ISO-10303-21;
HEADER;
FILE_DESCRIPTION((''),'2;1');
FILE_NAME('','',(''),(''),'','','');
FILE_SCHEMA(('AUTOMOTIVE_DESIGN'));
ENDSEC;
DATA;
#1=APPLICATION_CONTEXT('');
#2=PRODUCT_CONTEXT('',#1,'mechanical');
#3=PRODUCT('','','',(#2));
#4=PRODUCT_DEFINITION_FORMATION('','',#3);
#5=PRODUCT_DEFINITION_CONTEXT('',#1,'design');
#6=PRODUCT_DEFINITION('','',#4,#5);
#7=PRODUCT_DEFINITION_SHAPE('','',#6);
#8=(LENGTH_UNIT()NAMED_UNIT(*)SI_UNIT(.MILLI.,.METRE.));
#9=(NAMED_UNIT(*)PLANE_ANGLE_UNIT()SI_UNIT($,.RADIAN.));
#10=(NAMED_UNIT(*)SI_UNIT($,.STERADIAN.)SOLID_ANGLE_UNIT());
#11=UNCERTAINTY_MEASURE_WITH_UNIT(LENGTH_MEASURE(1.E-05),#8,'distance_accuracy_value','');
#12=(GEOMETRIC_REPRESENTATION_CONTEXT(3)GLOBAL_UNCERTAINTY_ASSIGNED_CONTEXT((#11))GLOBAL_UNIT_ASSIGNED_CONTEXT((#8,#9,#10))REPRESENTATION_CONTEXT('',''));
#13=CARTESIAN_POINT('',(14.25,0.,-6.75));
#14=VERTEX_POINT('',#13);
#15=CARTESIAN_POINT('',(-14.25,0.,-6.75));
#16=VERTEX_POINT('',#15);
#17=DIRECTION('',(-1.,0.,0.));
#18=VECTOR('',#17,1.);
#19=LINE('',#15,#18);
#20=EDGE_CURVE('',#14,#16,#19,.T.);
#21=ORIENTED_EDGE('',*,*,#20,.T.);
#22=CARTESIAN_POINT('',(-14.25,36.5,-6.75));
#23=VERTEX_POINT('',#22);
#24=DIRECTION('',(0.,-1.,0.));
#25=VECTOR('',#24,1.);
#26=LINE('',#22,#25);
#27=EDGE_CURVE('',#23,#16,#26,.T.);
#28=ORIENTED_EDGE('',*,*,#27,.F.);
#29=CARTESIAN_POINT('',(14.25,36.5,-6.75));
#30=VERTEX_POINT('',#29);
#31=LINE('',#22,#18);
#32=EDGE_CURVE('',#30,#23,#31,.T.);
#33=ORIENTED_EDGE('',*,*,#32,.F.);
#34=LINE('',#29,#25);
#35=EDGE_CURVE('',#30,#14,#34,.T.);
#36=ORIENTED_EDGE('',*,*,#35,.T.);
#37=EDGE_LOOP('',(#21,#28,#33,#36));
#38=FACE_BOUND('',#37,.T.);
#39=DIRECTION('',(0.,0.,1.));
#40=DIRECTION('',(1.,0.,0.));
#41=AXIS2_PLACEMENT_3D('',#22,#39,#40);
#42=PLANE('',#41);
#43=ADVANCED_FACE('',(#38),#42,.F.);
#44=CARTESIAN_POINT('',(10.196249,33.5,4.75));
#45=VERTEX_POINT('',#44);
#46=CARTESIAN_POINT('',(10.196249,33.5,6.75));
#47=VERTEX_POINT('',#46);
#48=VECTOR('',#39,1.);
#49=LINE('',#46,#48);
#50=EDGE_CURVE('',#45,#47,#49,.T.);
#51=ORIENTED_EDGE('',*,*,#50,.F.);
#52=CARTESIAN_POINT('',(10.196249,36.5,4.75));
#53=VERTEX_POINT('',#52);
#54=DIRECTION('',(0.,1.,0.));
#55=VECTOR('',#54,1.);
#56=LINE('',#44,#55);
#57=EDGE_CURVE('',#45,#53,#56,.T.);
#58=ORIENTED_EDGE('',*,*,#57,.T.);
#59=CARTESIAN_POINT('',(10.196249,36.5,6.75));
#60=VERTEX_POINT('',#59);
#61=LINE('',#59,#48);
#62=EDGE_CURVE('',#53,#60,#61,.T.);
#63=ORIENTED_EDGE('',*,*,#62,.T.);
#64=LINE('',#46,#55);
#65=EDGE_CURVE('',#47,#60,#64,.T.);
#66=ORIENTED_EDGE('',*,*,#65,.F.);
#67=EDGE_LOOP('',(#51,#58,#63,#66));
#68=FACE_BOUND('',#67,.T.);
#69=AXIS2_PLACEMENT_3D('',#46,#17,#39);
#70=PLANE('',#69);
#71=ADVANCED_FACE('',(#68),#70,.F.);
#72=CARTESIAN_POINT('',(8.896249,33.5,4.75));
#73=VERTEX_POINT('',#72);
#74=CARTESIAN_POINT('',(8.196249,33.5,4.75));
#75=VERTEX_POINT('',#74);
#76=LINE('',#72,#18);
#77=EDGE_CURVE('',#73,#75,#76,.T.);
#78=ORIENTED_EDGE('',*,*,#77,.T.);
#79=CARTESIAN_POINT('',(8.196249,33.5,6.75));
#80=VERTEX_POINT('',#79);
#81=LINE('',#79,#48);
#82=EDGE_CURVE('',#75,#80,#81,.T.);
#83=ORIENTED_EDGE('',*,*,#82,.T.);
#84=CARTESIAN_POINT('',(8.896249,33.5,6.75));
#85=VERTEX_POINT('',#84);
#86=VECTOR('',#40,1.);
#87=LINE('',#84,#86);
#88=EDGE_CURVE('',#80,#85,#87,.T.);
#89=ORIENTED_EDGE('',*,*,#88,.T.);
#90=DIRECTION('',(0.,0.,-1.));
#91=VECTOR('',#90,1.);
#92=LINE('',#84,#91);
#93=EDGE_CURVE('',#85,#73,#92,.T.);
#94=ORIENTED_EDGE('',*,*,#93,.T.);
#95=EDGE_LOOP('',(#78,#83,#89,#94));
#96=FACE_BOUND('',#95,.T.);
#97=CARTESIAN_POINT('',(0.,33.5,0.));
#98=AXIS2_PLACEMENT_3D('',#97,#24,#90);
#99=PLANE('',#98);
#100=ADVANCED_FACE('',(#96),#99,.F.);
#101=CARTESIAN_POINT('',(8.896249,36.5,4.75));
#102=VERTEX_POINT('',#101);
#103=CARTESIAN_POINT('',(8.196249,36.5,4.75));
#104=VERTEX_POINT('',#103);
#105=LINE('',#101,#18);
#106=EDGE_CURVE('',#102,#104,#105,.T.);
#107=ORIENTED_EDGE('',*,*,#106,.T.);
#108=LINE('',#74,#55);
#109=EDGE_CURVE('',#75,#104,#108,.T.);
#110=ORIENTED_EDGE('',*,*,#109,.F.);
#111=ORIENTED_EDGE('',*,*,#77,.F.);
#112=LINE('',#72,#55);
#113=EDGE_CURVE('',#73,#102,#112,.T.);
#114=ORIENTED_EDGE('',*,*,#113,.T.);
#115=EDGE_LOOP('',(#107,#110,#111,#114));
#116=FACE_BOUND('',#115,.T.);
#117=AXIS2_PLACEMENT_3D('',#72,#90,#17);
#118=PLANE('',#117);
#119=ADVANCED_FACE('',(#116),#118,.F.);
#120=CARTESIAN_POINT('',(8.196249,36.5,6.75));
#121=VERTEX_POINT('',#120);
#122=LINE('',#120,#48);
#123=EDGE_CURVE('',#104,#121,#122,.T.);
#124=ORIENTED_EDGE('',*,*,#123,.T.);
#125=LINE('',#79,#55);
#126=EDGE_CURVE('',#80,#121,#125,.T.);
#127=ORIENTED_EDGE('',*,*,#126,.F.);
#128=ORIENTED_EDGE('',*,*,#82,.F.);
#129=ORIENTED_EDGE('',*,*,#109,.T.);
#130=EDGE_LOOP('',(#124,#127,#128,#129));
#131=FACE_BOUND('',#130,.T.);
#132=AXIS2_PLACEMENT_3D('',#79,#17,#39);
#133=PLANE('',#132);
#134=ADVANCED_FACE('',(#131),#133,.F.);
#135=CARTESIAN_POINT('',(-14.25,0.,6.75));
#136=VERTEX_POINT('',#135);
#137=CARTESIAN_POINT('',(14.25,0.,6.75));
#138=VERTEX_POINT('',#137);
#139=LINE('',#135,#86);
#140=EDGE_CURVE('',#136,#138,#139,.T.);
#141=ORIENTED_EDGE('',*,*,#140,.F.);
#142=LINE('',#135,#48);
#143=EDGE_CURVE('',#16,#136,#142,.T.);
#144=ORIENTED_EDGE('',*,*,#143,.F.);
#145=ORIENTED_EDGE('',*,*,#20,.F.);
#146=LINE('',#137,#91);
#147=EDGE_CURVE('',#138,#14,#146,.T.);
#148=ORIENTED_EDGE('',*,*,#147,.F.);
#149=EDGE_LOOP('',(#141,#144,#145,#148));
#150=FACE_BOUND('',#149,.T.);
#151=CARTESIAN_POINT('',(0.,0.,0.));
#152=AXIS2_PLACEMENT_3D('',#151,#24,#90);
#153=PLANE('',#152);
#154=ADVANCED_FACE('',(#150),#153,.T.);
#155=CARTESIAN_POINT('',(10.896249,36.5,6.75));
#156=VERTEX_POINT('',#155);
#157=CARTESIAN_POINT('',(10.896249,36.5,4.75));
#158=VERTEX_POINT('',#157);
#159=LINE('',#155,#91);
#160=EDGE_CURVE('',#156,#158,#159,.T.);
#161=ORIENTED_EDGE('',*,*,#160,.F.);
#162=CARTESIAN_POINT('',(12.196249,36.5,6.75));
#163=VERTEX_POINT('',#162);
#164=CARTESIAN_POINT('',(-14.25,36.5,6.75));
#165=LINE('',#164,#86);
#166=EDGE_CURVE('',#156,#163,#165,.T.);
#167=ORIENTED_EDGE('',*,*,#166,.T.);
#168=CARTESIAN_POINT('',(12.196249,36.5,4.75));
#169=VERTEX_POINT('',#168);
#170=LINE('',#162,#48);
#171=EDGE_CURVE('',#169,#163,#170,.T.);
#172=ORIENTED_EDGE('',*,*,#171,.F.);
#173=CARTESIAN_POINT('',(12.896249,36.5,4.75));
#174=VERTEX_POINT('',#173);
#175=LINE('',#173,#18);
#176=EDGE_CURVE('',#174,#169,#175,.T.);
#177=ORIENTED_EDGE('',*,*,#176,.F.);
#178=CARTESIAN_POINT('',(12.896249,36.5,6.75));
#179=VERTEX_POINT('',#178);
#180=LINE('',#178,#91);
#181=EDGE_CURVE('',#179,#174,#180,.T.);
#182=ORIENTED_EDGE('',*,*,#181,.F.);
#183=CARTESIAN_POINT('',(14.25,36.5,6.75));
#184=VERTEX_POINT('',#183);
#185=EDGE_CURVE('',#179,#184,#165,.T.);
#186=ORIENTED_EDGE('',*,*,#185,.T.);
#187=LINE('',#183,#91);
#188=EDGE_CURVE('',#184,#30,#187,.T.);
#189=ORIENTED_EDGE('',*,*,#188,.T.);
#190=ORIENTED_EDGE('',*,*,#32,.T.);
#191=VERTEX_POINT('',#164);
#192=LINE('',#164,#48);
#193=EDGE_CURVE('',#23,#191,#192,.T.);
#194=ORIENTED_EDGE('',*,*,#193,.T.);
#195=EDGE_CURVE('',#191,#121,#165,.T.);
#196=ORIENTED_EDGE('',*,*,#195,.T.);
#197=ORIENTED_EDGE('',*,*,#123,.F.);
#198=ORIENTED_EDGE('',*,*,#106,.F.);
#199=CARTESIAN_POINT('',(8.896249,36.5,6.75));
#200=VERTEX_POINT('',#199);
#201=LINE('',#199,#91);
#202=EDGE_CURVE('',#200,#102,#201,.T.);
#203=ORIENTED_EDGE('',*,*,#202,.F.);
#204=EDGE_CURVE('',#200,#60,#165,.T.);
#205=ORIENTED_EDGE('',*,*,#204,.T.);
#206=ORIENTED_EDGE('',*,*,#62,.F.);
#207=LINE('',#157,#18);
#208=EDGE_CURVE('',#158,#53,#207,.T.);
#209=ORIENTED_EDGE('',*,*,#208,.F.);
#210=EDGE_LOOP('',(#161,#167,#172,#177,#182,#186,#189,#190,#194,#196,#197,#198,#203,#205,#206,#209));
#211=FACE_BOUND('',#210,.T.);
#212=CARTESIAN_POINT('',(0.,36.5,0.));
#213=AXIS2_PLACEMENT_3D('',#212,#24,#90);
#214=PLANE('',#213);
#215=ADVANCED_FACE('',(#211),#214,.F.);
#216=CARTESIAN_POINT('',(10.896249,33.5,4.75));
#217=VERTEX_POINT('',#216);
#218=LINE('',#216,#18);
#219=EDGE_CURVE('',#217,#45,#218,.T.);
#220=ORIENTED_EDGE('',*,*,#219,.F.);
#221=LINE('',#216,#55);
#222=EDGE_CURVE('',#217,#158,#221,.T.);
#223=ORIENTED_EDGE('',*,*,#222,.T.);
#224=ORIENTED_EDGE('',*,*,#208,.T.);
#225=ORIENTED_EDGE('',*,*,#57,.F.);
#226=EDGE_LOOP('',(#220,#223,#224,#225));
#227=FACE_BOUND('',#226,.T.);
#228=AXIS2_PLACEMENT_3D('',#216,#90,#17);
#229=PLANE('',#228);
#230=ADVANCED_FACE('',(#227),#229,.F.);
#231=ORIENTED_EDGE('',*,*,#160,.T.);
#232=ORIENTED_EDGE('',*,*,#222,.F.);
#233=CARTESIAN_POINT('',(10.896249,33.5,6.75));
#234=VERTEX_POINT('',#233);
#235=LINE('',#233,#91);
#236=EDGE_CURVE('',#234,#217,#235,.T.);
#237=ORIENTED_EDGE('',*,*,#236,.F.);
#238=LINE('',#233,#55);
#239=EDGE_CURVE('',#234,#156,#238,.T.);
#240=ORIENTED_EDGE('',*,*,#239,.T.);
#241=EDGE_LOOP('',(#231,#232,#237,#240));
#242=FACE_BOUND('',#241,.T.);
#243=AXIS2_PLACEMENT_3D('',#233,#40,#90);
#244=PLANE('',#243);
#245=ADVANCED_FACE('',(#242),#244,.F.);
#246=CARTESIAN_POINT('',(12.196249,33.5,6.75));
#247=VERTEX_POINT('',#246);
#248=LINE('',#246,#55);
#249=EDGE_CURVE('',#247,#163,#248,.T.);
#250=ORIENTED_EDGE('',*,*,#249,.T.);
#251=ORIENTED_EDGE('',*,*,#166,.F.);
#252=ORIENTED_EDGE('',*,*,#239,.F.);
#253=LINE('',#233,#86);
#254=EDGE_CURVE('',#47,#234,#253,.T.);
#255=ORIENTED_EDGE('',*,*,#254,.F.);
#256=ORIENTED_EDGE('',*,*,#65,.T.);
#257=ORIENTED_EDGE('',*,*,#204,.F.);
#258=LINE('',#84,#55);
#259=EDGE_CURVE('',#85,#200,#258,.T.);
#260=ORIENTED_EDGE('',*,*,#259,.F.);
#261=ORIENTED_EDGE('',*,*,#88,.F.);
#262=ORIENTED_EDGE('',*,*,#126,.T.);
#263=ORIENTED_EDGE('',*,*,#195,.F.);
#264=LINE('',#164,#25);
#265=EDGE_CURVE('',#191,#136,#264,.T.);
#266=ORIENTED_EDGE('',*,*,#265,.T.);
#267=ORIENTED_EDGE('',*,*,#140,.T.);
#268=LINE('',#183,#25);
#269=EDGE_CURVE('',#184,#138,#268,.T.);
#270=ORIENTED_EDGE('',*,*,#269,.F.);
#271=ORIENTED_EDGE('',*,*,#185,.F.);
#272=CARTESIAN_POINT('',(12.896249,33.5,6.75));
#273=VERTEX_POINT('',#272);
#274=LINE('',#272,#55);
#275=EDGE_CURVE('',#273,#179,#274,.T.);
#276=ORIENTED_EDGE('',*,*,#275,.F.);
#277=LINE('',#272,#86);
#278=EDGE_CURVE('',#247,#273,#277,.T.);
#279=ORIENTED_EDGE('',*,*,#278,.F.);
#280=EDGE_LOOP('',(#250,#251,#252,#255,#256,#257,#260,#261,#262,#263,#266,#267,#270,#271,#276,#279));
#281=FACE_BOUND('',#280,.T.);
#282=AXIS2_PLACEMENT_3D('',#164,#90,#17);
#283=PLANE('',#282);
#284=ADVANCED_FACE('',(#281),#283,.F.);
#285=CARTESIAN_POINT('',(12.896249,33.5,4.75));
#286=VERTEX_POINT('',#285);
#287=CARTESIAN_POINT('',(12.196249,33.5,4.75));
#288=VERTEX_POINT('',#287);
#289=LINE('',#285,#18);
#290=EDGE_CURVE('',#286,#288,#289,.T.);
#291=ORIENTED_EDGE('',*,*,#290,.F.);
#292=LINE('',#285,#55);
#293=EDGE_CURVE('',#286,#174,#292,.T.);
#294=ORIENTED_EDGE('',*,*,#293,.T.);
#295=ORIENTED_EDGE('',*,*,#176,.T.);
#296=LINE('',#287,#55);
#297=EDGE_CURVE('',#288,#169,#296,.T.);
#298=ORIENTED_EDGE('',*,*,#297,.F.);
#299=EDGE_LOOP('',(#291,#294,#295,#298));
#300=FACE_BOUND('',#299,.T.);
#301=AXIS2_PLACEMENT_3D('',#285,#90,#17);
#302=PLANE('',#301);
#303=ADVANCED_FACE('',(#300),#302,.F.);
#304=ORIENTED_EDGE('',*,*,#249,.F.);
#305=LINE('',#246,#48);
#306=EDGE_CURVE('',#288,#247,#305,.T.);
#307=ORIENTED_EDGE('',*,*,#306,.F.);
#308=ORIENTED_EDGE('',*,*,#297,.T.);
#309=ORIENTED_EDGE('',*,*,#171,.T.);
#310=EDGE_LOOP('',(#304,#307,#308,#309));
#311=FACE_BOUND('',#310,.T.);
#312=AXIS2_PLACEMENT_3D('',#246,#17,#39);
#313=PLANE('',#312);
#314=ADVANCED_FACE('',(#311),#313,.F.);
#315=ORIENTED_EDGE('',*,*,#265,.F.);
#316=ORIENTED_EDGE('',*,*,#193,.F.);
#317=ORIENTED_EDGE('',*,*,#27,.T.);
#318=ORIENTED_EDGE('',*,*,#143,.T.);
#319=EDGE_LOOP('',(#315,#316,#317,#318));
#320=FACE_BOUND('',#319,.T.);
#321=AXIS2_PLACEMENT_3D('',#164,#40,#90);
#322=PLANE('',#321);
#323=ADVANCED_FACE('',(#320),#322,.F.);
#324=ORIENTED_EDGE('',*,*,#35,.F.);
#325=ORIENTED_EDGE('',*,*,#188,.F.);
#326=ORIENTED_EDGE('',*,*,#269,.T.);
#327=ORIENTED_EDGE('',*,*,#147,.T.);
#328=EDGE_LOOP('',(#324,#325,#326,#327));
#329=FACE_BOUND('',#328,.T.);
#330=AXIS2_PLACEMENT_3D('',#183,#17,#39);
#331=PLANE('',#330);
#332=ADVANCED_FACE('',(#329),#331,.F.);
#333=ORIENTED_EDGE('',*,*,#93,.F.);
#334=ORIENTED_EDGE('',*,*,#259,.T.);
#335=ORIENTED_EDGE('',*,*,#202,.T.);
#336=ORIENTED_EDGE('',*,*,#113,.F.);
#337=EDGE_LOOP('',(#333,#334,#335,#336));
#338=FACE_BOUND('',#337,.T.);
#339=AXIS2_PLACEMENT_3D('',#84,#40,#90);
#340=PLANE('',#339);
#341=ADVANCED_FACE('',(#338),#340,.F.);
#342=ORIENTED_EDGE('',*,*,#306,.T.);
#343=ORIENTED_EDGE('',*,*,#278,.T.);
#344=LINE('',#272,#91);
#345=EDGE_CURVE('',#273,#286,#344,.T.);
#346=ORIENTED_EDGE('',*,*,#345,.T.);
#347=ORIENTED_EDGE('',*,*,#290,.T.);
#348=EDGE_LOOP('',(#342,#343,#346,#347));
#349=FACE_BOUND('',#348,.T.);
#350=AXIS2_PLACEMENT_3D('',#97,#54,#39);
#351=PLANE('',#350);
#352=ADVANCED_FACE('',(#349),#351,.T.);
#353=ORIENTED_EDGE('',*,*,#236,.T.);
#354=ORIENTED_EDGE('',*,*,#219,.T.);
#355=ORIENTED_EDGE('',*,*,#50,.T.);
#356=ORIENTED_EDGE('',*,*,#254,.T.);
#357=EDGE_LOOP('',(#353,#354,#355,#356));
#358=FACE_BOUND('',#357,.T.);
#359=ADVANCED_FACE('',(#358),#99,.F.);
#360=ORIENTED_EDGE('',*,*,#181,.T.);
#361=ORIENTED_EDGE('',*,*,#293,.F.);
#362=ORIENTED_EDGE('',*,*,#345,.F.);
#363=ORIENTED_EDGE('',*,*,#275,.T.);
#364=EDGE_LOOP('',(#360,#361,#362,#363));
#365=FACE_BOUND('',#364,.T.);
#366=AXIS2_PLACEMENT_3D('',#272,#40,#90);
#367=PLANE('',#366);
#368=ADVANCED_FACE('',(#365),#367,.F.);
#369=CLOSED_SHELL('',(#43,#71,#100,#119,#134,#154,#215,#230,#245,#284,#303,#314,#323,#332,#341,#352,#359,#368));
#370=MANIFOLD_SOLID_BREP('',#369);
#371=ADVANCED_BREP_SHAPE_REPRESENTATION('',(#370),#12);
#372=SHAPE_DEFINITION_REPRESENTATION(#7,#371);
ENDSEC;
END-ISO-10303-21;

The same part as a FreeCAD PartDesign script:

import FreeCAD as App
import Part
import Sketcher

doc = App.newDocument("Part")
body = doc.addObject("PartDesign::Body", "Body")

sketch1 = body.newObject("Sketcher::SketchObject", "Sketch")
sketch1.AttachmentSupport = (doc.getObject("XZ_Plane"), [""])
sketch1.MapMode = "FlatFace"
sketch1.addGeometry(Part.LineSegment(App.Vector(-14, -7, 0), App.Vector(-14, 7, 0)), False)
sketch1.addGeometry(Part.LineSegment(App.Vector(-14, 7, 0), App.Vector(14, 7, 0)), False)
sketch1.addGeometry(Part.LineSegment(App.Vector(14, 7, 0), App.Vector(14, -7, 0)), False)
sketch1.addGeometry(Part.LineSegment(App.Vector(14, -7, 0), App.Vector(-14, -7, 0)), False)
sketch1.addConstraint(Sketcher.Constraint("Coincident", 0, 2, 1, 1))
sketch1.addConstraint(Sketcher.Constraint("Coincident", 1, 2, 2, 1))
sketch1.addConstraint(Sketcher.Constraint("Coincident", 2, 2, 3, 1))
sketch1.addConstraint(Sketcher.Constraint("Coincident", 3, 2, 0, 1))
sketch1.addConstraint(Sketcher.Constraint("Vertical", 0))
sketch1.addConstraint(Sketcher.Constraint("Horizontal", 1))
sketch1.addConstraint(Sketcher.Constraint("Vertical", 2))
sketch1.addConstraint(Sketcher.Constraint("Horizontal", 3))
sketch1.addConstraint(Sketcher.Constraint("Symmetric", 0, 2, 2, 2, -1, 1))
sketch1.addConstraint(Sketcher.Constraint("DistanceX", 1, 1, 1, 2, 28.5))
sketch1.addConstraint(Sketcher.Constraint("DistanceY", 0, 1, 0, 2, 13.5))
pad1 = body.newObject("PartDesign::Pad", "Pad")
pad1.Profile = sketch1
pad1.Length = 36.5
pad1.Reversed = True

sketch2 = body.newObject("Sketcher::SketchObject", "Sketch001")
sketch2.AttachmentSupport = (doc.getObject("XZ_Plane"), [""])
sketch2.MapMode = "FlatFace"
sketch2.AttachmentOffset = App.Placement(App.Vector(0, 0, -36.5), App.Rotation())
sketch2.addGeometry(Part.LineSegment(App.Vector(12.2, 4.8, 0), App.Vector(12.2, 6.8, 0)), False)
sketch2.addGeometry(Part.LineSegment(App.Vector(12.2, 6.8, 0), App.Vector(12.9, 6.8, 0)), False)
sketch2.addGeometry(Part.LineSegment(App.Vector(12.9, 6.8, 0), App.Vector(12.9, 4.8, 0)), False)
sketch2.addGeometry(Part.LineSegment(App.Vector(12.9, 4.8, 0), App.Vector(12.2, 4.8, 0)), False)
sketch2.addGeometry(Part.LineSegment(App.Vector(10.2, 4.8, 0), App.Vector(10.2, 6.8, 0)), False)
sketch2.addGeometry(Part.LineSegment(App.Vector(10.2, 6.8, 0), App.Vector(10.9, 6.8, 0)), False)
sketch2.addGeometry(Part.LineSegment(App.Vector(10.9, 6.8, 0), App.Vector(10.9, 4.8, 0)), False)
sketch2.addGeometry(Part.LineSegment(App.Vector(10.9, 4.8, 0), App.Vector(10.2, 4.8, 0)), False)
sketch2.addGeometry(Part.LineSegment(App.Vector(8.2, 4.8, 0), App.Vector(8.2, 6.8, 0)), False)
sketch2.addGeometry(Part.LineSegment(App.Vector(8.2, 6.8, 0), App.Vector(8.9, 6.8, 0)), False)
sketch2.addGeometry(Part.LineSegment(App.Vector(8.9, 6.8, 0), App.Vector(8.9, 4.8, 0)), False)
sketch2.addGeometry(Part.LineSegment(App.Vector(8.9, 4.8, 0), App.Vector(8.2, 4.8, 0)), False)
sketch2.addConstraint(Sketcher.Constraint("Coincident", 0, 2, 1, 1))
sketch2.addConstraint(Sketcher.Constraint("Coincident", 1, 2, 2, 1))
sketch2.addConstraint(Sketcher.Constraint("Coincident", 2, 2, 3, 1))
sketch2.addConstraint(Sketcher.Constraint("Coincident", 3, 2, 0, 1))
sketch2.addConstraint(Sketcher.Constraint("Coincident", 4, 2, 5, 1))
sketch2.addConstraint(Sketcher.Constraint("Coincident", 5, 2, 6, 1))
sketch2.addConstraint(Sketcher.Constraint("Coincident", 6, 2, 7, 1))
sketch2.addConstraint(Sketcher.Constraint("Coincident", 7, 2, 4, 1))
sketch2.addConstraint(Sketcher.Constraint("Coincident", 8, 2, 9, 1))
sketch2.addConstraint(Sketcher.Constraint("Coincident", 9, 2, 10, 1))
sketch2.addConstraint(Sketcher.Constraint("Coincident", 10, 2, 11, 1))
sketch2.addConstraint(Sketcher.Constraint("Coincident", 11, 2, 8, 1))
sketch2.addConstraint(Sketcher.Constraint("Vertical", 0))
sketch2.addConstraint(Sketcher.Constraint("Horizontal", 1))
sketch2.addConstraint(Sketcher.Constraint("Vertical", 2))
sketch2.addConstraint(Sketcher.Constraint("Horizontal", 3))
sketch2.addConstraint(Sketcher.Constraint("Vertical", 4))
sketch2.addConstraint(Sketcher.Constraint("Horizontal", 5))
sketch2.addConstraint(Sketcher.Constraint("Vertical", 6))
sketch2.addConstraint(Sketcher.Constraint("Horizontal", 7))
sketch2.addConstraint(Sketcher.Constraint("Vertical", 8))
sketch2.addConstraint(Sketcher.Constraint("Horizontal", 9))
sketch2.addConstraint(Sketcher.Constraint("Vertical", 10))
sketch2.addConstraint(Sketcher.Constraint("Horizontal", 11))
sketch2.addConstraint(Sketcher.Constraint("Horizontal", 1, 2, 4, 2))
sketch2.addConstraint(Sketcher.Constraint("Horizontal", 3, 2, 6, 2))
sketch2.addConstraint(Sketcher.Constraint("Horizontal", 5, 2, 8, 2))
sketch2.addConstraint(Sketcher.Constraint("Horizontal", 7, 2, 10, 2))
sketch2.addConstraint(Sketcher.Constraint("Equal", 3, 5))
sketch2.addConstraint(Sketcher.Constraint("Equal", 7, 9))
sketch2.addConstraint(Sketcher.Constraint("DistanceY", 0, 1, 0, 2, 2.0))
sketch2.addConstraint(Sketcher.Constraint("DistanceX", 1, 1, 1, 2, 0.7))
sketch2.addConstraint(Sketcher.Constraint("DistanceX", 4, 2, 0, 2, 2.0))
sketch2.addConstraint(Sketcher.Constraint("DistanceX", 8, 2, 4, 2, 2.0))
sketch2.addConstraint(Sketcher.Constraint("DistanceY", -1, 1, 0, 2, 6.75))
sketch2.addConstraint(Sketcher.Constraint("DistanceX", -1, 1, 0, 2, 12.196249))
pocket1 = body.newObject("PartDesign::Pocket", "Pocket")
pocket1.Profile = sketch2
pocket1.Length = 3
pocket1.Reversed = True

doc.recompute()
